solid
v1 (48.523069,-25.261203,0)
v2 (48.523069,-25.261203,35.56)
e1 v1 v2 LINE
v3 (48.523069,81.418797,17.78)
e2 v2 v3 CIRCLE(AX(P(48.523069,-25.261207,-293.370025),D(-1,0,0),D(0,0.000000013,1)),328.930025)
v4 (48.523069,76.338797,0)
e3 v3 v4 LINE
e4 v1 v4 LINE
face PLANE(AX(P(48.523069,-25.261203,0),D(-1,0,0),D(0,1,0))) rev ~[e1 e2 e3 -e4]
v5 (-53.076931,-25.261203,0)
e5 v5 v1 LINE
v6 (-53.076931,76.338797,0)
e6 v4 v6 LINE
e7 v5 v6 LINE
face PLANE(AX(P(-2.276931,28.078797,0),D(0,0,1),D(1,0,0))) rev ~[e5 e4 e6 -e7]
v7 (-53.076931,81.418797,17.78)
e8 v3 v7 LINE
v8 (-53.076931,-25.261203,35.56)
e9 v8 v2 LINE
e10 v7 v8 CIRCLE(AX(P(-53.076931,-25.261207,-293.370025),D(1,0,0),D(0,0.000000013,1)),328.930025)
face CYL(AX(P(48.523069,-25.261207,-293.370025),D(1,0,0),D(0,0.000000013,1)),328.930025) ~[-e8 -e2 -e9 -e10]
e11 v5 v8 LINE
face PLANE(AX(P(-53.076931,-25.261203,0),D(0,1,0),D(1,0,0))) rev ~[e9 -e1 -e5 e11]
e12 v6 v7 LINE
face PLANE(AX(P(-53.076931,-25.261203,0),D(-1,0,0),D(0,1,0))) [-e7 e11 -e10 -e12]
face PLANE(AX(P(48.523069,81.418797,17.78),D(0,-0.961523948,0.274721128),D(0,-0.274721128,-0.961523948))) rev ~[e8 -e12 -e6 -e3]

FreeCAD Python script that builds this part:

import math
import FreeCAD as App
import Part
import Sketcher

V = App.Vector
Q = App.Units.Quantity

doc = App.newDocument("Part")
body = doc.addObject("PartDesign::Body", "Body")

sketch1 = body.newObject("Sketcher::SketchObject", "Sketch")
sketch1.AttachmentSupport = (doc.getObject("XY_Plane"), [""])
sketch1.MapMode = "FlatFace"
sketch1.addGeometry(Part.LineSegment(V(-53, 81, 0), V(-53, -25, 0)), False)
sketch1.addGeometry(Part.LineSegment(V(-53, -25, 0), V(49, -25, 0)), False)
sketch1.addGeometry(Part.LineSegment(V(49, -25, 0), V(49, 81, 0)), False)
sketch1.addGeometry(Part.LineSegment(V(49, 81, 0), V(-53, 81, 0)), False)
sketch1.addConstraint(Sketcher.Constraint("Coincident", 0, 2, 1, 1))
sketch1.addConstraint(Sketcher.Constraint("Coincident", 1, 2, 2, 1))
sketch1.addConstraint(Sketcher.Constraint("Coincident", 2, 2, 3, 1))
sketch1.addConstraint(Sketcher.Constraint("Coincident", 3, 2, 0, 1))
sketch1.addConstraint(Sketcher.Constraint("Vertical", 0))
sketch1.addConstraint(Sketcher.Constraint("Horizontal", 1))
sketch1.addConstraint(Sketcher.Constraint("Vertical", 2))
sketch1.addConstraint(Sketcher.Constraint("Horizontal", 3))
sketch1.addConstraint(Sketcher.Constraint("DistanceX", 1, 1, 1, 2, Q("4 in")))
sketch1.addConstraint(Sketcher.Constraint("DistanceY", 0, 2, 0, 1, Q("4.2 in")))
sketch1.addConstraint(Sketcher.Constraint("DistanceX", 0, 2, -1, 1, 53.076931))
sketch1.addConstraint(Sketcher.Constraint("DistanceY", 0, 2, -1, 1, 25.261203))
pad1 = body.newObject("PartDesign::Pad", "Pad")
pad1.Profile = sketch1
pad1.Length = Q("1.4 in")

sketch2 = body.newObject("Sketcher::SketchObject", "Sketch001")
sketch2.AttachmentSupport = (doc.getObject("YZ_Plane"), [""])
sketch2.MapMode = "FlatFace"
sketch2.AttachmentOffset = App.Placement(V(0, 0, 48.523069), App.Rotation())
sketch2.addGeometry(Part.ArcOfCircle(Part.Circle(V(-25.261207, -293.370025, 0), V(0, 0, 1), 328.930025), math.radians(71.075356), math.radians(89.999999)), False)
sketch2.addGeometry(Part.LineSegment(V(81.418797, 17.78, 0), V(81.418797, 35.56, 0)), False)
sketch2.addGeometry(Part.LineSegment(V(81.418797, 35.56, 0), V(-25.261203, 35.56, 0)), False)
sketch2.addGeometry(Part.LineSegment(V(81.418797, 0, 0), V(81.418797, 17.78, 0)), False)
sketch2.addGeometry(Part.LineSegment(V(81.418797, 17.78, 0), V(76.338797, 0, 0)), False)
sketch2.addGeometry(Part.LineSegment(V(76.338797, 0, 0), V(81.418797, 0, 0)), False)
sketch2.addConstraint(Sketcher.Constraint("Coincident", 0, 1, 1, 1))
sketch2.addConstraint(Sketcher.Constraint("Coincident", 1, 2, 2, 1))
sketch2.addConstraint(Sketcher.Constraint("Tangent", 2, 2, 0, 2))
sketch2.addConstraint(Sketcher.Constraint("Coincident", 3, 2, 4, 1))
sketch2.addConstraint(Sketcher.Constraint("Coincident", 4, 2, 5, 1))
sketch2.addConstraint(Sketcher.Constraint("Coincident", 5, 2, 3, 1))
sketch2.addConstraint(Sketcher.Constraint("Vertical", 1))
sketch2.addConstraint(Sketcher.Constraint("Horizontal", 2))
sketch2.addConstraint(Sketcher.Constraint("Vertical", 3))
sketch2.addConstraint(Sketcher.Constraint("Horizontal", 5))
sketch2.addConstraint(Sketcher.Constraint("Coincident", 3, 2, 0, 1))
sketch2.addConstraint(Sketcher.Constraint("PointOnObject", 4, 2, -1))
sketch2.addConstraint(Sketcher.Constraint("Equal", 1, 3))
sketch2.addConstraint(Sketcher.Constraint("DistanceX", 2, 2, 2, 1, Q("4.2 in")))
sketch2.addConstraint(Sketcher.Constraint("DistanceX", 5, 1, 5, 2, Q("0.2 in")))
sketch2.addConstraint(Sketcher.Constraint("DistanceY", 1, 1, 1, 2, Q("0.7 in")))
sketch2.addConstraint(Sketcher.Constraint("DistanceX", 0, 3, -1, 1, 25.261207))
pocket1 = body.newObject("PartDesign::Pocket", "Pocket")
pocket1.Profile = sketch2
pocket1.Length = Q("5 in")

doc.recompute()
